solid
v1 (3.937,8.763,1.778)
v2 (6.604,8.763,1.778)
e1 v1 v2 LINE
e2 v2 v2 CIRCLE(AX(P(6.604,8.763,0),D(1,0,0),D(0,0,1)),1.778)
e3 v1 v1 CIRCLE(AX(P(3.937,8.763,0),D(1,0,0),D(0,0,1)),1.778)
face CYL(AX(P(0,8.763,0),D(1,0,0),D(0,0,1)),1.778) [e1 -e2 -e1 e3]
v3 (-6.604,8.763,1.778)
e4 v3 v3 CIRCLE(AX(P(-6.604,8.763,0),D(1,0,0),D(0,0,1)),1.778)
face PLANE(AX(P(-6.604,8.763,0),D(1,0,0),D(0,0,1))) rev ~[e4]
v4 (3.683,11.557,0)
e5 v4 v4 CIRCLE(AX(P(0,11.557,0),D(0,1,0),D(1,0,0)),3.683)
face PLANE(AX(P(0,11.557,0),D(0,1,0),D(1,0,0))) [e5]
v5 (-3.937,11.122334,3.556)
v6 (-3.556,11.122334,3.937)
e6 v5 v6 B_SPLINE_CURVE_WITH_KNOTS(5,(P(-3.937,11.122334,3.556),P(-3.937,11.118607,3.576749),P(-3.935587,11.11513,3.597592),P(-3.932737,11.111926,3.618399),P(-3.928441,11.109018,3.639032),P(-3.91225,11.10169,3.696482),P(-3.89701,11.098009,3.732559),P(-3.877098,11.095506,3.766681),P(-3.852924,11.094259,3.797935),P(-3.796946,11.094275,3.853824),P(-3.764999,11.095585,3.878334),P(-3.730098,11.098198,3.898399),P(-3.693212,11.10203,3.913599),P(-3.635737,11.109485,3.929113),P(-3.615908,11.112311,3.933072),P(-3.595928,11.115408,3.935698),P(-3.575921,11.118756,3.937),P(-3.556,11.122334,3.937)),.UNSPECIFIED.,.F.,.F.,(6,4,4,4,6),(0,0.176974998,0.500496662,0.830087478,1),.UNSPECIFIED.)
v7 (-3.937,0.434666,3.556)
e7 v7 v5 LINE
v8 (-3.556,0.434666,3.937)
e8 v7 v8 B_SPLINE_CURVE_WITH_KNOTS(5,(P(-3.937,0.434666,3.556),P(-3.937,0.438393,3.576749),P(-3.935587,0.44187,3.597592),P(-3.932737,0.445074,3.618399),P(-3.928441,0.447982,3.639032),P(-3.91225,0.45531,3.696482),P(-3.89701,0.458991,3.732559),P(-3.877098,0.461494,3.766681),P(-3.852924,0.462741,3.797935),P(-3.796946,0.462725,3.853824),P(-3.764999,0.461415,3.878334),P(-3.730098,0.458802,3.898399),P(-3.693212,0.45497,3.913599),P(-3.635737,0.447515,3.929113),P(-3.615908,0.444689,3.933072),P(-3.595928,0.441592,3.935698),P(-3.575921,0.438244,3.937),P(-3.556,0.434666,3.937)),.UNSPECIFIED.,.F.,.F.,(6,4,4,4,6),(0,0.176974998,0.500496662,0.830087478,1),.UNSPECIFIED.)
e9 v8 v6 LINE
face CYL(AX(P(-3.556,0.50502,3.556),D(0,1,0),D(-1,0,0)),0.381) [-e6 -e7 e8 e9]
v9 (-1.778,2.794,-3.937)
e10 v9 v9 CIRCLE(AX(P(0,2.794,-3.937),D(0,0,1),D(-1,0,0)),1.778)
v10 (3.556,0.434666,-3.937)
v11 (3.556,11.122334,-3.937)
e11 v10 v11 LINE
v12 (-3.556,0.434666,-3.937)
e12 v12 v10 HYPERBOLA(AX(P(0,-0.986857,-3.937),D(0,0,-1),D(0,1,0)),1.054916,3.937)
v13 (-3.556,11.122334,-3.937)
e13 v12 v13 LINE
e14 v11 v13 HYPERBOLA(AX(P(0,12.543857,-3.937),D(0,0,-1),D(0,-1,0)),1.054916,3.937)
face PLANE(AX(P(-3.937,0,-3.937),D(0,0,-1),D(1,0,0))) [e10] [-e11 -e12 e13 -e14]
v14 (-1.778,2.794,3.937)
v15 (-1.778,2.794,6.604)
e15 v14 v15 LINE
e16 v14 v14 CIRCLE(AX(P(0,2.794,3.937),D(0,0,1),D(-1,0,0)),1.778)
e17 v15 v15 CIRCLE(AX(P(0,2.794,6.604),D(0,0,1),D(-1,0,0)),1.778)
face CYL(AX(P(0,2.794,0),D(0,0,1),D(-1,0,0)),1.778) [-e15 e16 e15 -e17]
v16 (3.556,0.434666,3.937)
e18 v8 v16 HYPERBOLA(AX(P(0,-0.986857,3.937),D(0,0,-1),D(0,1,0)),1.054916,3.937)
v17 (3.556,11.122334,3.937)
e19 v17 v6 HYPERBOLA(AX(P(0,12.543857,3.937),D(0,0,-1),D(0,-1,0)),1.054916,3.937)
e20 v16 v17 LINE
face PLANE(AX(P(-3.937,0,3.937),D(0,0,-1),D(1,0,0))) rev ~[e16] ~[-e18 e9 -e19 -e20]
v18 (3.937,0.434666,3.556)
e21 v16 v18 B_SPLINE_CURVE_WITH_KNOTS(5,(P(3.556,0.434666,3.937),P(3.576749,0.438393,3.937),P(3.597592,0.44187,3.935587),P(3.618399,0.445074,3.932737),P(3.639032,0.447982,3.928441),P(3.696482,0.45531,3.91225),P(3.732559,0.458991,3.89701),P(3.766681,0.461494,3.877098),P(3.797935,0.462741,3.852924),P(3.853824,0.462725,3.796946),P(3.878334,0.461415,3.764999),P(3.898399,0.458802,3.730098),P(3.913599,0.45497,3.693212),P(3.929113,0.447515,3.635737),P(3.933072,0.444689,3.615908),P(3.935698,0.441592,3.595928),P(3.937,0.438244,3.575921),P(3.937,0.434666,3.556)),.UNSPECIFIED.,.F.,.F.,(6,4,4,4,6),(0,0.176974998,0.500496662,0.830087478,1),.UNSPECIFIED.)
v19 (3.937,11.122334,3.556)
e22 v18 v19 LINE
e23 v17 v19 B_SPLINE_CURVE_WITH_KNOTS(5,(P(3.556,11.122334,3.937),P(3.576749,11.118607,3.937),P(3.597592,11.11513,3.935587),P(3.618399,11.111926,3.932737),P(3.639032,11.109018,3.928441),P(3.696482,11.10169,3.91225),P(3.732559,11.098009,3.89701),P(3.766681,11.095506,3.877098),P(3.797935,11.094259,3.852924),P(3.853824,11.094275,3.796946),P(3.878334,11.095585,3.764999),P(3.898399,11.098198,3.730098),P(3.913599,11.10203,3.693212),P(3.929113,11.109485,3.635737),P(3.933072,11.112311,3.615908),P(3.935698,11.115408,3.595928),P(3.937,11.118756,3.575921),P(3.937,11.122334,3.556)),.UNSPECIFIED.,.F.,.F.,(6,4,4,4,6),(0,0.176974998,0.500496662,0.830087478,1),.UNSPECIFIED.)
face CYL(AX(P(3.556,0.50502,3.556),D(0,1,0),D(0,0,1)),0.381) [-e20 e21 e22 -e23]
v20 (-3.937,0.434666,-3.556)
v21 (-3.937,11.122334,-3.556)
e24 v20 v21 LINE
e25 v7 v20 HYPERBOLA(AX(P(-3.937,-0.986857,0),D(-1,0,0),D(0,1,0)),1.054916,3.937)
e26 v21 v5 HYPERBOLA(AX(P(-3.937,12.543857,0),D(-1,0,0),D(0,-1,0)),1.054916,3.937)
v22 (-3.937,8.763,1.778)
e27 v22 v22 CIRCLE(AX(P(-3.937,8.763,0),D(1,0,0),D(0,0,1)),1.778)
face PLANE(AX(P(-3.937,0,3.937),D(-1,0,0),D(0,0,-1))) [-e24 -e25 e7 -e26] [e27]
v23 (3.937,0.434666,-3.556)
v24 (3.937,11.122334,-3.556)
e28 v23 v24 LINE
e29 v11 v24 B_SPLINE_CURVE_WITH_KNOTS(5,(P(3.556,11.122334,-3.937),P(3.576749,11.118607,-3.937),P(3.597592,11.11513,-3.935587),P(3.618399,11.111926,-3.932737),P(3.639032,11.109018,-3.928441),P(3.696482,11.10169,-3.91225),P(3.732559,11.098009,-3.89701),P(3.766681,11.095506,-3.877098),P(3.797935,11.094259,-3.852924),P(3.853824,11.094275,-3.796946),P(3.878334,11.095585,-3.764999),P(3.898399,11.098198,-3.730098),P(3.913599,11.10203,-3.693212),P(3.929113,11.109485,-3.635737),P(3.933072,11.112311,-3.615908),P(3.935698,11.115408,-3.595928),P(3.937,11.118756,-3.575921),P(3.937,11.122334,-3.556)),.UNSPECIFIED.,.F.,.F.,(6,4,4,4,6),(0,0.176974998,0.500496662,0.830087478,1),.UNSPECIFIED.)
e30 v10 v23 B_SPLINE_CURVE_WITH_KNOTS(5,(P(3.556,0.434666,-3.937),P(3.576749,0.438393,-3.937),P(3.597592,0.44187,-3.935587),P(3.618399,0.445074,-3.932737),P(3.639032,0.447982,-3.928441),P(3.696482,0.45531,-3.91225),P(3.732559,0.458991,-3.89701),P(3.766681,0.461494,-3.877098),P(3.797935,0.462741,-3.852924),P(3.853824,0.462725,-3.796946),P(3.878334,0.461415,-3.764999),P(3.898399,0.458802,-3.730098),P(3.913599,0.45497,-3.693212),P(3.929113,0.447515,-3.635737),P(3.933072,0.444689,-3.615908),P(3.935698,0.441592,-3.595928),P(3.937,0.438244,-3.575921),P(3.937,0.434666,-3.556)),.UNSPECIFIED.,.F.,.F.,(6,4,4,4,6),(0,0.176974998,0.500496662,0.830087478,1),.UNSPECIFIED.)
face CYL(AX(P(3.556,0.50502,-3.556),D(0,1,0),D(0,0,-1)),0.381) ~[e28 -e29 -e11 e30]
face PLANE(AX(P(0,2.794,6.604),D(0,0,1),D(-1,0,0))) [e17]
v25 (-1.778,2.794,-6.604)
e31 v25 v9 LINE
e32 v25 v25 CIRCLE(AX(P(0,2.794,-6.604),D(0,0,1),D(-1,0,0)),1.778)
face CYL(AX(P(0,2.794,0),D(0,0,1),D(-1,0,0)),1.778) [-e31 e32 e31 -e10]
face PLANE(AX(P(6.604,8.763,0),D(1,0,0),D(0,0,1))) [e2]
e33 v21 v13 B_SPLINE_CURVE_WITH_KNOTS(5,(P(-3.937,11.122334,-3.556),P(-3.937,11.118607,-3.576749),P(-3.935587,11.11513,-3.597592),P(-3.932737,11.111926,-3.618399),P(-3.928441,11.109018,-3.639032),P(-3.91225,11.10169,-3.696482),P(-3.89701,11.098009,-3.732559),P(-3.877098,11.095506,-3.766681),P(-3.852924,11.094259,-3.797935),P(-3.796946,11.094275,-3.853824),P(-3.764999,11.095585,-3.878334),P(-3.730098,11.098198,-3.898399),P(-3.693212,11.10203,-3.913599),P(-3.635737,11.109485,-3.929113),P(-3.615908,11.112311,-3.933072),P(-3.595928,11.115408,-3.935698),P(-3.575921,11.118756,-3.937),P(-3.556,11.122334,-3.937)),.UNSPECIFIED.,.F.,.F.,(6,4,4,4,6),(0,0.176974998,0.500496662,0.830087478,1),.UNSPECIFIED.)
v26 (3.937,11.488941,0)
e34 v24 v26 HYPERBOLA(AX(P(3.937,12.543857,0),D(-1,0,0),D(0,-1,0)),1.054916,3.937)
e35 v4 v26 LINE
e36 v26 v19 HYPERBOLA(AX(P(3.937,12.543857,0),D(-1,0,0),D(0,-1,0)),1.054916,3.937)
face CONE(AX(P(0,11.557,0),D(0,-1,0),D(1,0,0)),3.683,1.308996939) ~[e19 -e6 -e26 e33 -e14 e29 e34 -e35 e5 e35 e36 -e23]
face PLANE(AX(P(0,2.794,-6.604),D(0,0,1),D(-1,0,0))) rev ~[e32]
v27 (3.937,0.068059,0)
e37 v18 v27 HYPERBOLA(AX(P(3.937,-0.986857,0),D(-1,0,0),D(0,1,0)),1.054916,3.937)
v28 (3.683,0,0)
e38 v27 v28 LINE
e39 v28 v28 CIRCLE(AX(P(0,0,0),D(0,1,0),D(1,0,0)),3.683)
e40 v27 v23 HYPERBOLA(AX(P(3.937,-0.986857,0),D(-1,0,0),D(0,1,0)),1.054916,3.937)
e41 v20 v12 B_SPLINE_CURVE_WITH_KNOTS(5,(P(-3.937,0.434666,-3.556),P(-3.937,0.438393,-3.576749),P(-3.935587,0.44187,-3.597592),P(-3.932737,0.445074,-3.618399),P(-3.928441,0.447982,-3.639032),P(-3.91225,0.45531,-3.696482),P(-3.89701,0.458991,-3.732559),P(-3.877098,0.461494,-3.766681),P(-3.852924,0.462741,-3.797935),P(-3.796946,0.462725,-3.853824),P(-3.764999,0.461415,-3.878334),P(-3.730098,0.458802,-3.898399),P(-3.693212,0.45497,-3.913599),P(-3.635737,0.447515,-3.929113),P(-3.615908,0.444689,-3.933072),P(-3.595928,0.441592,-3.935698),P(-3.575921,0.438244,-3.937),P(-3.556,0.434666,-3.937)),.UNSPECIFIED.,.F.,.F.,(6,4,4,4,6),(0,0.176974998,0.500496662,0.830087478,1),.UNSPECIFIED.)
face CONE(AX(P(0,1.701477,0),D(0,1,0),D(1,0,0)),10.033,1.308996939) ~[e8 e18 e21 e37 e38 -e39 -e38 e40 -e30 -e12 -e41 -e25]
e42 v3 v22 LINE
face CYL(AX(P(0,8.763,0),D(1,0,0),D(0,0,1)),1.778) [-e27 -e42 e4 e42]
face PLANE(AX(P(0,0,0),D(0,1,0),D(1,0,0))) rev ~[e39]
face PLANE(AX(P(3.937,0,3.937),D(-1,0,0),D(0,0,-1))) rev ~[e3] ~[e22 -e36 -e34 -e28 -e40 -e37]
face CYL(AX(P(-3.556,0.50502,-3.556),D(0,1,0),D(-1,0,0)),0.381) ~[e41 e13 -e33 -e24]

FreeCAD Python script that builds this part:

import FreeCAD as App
import Part
import Sketcher

V = App.Vector
Q = App.Units.Quantity


def edges_at(feature, points):
    """Names of the edges that pass closest to the given points."""
    edges = feature.Shape.Edges
    near = lambda p: min(range(len(edges)), key=lambda i: edges[i].distToShape(Part.Vertex(*p))[0])
    return sorted({f"Edge{near(p) + 1}" for p in points})

doc = App.newDocument("Part")
body = doc.addObject("PartDesign::Body", "Body")

sketch1 = body.newObject("Sketcher::SketchObject", "Sketch")
sketch1.AttachmentSupport = (doc.getObject("XZ_Plane"), [""])
sketch1.MapMode = "FlatFace"
sketch1.addGeometry([
    Part.LineSegment(V(-3.937, -3.937, 0), V(-3.937, 3.937, 0)),
    Part.LineSegment(V(-3.937, 3.937, 0), V(3.937, 3.937, 0)),
    Part.LineSegment(V(3.937, 3.937, 0), V(3.937, -3.937, 0)),
    Part.LineSegment(V(3.937, -3.937, 0), V(-3.937, -3.937, 0)),
], False)
sketch1.addConstraint([
    Sketcher.Constraint("Coincident", 0, 2, 1, 1),
    Sketcher.Constraint("Coincident", 1, 2, 2, 1),
    Sketcher.Constraint("Coincident", 2, 2, 3, 1),
    Sketcher.Constraint("Coincident", 3, 2, 0, 1),
    Sketcher.Constraint("Vertical", 0),
    Sketcher.Constraint("Horizontal", 1),
    Sketcher.Constraint("Vertical", 2),
    Sketcher.Constraint("Horizontal", 3),
    Sketcher.Constraint("Symmetric", 0, 2, 2, 2, -1, 1),
    Sketcher.Constraint("Equal", 3, 0),
    Sketcher.Constraint("DistanceX", 1, 1, 1, 2, Q("0.31 in")),
])
pad1 = body.newObject("PartDesign::Pad", "Pad")
pad1.Profile = sketch1
pad1.Length = Q("0.455 in")
pad1.Reversed = True

sketch2 = body.newObject("Sketcher::SketchObject", "Sketch001")
sketch2.AttachmentSupport = (doc.getObject("XY_Plane"), [""])
sketch2.MapMode = "FlatFace"
sketch2.addGeometry([
    Part.LineSegment(V(-10.033, 9.855523, 0), V(-3.683, 11.557, 0)),
    Part.LineSegment(V(-3.683, 11.557, 0), V(-12.573, 11.557, 0)),
    Part.LineSegment(V(-12.573, 11.557, 0), V(-12.573, 0, 0)),
    Part.LineSegment(V(-12.573, 0, 0), V(-3.683, 0, 0)),
    Part.LineSegment(V(-3.683, 0, 0), V(-10.033, 1.701477, 0)),
    Part.LineSegment(V(-10.033, 1.701477, 0), V(-10.033, 9.855523, 0)),
], False)
sketch2.addConstraint([
    Sketcher.Constraint("Coincident", 0, 2, 1, 1),
    Sketcher.Constraint("Coincident", 1, 2, 2, 1),
    Sketcher.Constraint("Coincident", 2, 2, 3, 1),
    Sketcher.Constraint("Coincident", 3, 2, 4, 1),
    Sketcher.Constraint("Coincident", 4, 2, 5, 1),
    Sketcher.Constraint("Coincident", 5, 2, 0, 1),
    Sketcher.Constraint("Horizontal", 1),
    Sketcher.Constraint("Vertical", 2),
    Sketcher.Constraint("Horizontal", 3),
    Sketcher.Constraint("Vertical", 5),
    Sketcher.Constraint("PointOnObject", 2, 2, -1),
    Sketcher.Constraint("Vertical", 0, 2, 3, 2),
    Sketcher.Constraint("Equal", 0, 4),
    Sketcher.Constraint("Angle", 0, Q("15 deg")),
    Sketcher.Constraint("DistanceX", 1, 2, 1, 1, Q("0.35 in")),
    Sketcher.Constraint("DistanceX", 2, 2, 4, 2, Q("0.1 in")),
    Sketcher.Constraint("DistanceY", 2, 2, 2, 1, Q("0.455 in")),
    Sketcher.Constraint("DistanceX", 0, 2, -1, 1, Q("0.145 in")),
])
groove = body.newObject("PartDesign::Groove", "Groove")
groove.Profile = sketch2
groove.ReferenceAxis = (sketch2, ["V_Axis"])
groove.Angle = 360

sketch3 = body.newObject("Sketcher::SketchObject", "Sketch002")
sketch3.AttachmentSupport = (doc.getObject("XY_Plane"), [""])
sketch3.MapMode = "FlatFace"
sketch3.addGeometry(Part.Circle(V(0, 2.794, 0), V(0, 0, 1), 1.778), False)
sketch3.addConstraint([
    Sketcher.Constraint("PointOnObject", 0, 3, -2),
    Sketcher.Constraint("Diameter", 0, Q("0.14 in")),
    Sketcher.Constraint("DistanceY", -1, 1, 0, 3, Q("0.11 in")),
])
pad2 = body.newObject("PartDesign::Pad", "Pad001")
pad2.Profile = sketch3
pad2.Length = Q("0.52 in")
pad2.Midplane = True

sketch4 = body.newObject("Sketcher::SketchObject", "Sketch003")
sketch4.AttachmentSupport = (doc.getObject("YZ_Plane"), [""])
sketch4.MapMode = "FlatFace"
sketch4.addGeometry(Part.Circle(V(8.763, 0, 0), V(0, 0, 1), 1.778), False)
sketch4.addConstraint([
    Sketcher.Constraint("PointOnObject", 0, 3, -1),
    Sketcher.Constraint("Diameter", 0, Q("0.14 in")),
    Sketcher.Constraint("DistanceX", -1, 1, 0, 3, Q("0.345 in")),
])
pad3 = body.newObject("PartDesign::Pad", "Pad002")
pad3.Profile = sketch4
pad3.Length = Q("0.52 in")
pad3.Midplane = True
doc.recompute()

fillet = body.newObject("PartDesign::Fillet", "Fillet")
fillet.Base = (pad3, edges_at(pad3, [
    (3.937, 5.779, -3.937),
    (-3.937, 5.779, -3.937),
    (-3.937, 5.779, 3.937),
    (3.937, 5.779, 3.937),
]))
fillet.Radius = Q("0.015 in")

doc.recompute()
